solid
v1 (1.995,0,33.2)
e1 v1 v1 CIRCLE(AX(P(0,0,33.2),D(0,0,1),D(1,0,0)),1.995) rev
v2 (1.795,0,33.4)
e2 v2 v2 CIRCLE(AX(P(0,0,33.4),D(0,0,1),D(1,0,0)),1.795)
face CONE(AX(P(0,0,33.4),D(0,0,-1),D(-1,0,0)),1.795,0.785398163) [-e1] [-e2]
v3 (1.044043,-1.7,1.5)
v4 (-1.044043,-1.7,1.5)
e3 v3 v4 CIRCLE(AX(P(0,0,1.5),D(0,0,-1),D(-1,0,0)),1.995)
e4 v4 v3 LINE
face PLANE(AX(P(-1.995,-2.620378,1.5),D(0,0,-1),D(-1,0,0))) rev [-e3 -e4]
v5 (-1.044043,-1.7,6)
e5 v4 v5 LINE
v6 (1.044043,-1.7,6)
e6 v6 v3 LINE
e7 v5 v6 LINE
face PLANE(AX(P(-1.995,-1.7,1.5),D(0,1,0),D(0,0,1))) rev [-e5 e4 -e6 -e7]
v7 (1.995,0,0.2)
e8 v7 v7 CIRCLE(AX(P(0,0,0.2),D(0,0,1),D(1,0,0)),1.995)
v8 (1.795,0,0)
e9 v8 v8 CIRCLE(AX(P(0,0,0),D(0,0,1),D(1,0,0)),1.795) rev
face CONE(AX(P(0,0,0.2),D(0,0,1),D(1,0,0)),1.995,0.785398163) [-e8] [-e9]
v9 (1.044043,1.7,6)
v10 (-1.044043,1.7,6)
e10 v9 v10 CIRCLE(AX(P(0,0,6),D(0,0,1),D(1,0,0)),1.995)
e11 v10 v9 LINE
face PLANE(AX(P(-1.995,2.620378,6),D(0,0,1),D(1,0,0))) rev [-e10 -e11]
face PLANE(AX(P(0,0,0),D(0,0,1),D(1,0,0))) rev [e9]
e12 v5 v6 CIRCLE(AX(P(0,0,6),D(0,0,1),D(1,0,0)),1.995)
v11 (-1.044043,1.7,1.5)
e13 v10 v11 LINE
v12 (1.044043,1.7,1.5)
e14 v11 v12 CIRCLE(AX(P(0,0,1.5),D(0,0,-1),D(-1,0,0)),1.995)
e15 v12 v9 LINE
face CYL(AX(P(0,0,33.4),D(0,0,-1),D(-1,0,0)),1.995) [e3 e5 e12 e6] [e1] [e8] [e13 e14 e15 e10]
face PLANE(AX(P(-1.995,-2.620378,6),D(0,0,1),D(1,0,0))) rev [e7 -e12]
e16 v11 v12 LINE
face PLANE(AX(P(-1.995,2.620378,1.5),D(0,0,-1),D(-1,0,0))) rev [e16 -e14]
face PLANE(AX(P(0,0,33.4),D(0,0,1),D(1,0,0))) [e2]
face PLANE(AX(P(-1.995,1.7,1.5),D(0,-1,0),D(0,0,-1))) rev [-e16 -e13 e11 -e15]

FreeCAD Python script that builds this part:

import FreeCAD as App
import Part
import Sketcher
from FreeCAD import Vector
Q = App.Units.Quantity


def edges_at(feature, points):
    """Names of the edges that pass closest to the given points."""
    edges = feature.Shape.Edges
    near = lambda p: min(range(len(edges)), key=lambda i: edges[i].distToShape(Part.Vertex(*p))[0])
    return sorted({f"Edge{near(p) + 1}" for p in points})


def add_polygon(sketch, points):
    """Adds a closed chain of lines whose ends are joined by coincident constraints."""
    first, n = sketch.GeometryCount, len(points)
    for a, b in zip(points, points[1:] + points[:1]):
        sketch.addGeometry(Part.LineSegment(App.Vector(*a, 0), App.Vector(*b, 0)), False)
    for i in range(n):
        sketch.addConstraint(Sketcher.Constraint("Coincident", first + i, 2, first + (i + 1) % n, 1))

doc = App.newDocument("Part")
body = doc.addObject("PartDesign::Body", "Body")

sketch1 = body.newObject("Sketcher::SketchObject", "Sketch")
sketch1.AttachmentSupport = (doc.getObject("XY_Plane"), [""])
sketch1.MapMode = "FlatFace"
sketch1.addGeometry(Part.Circle(Vector(0, 0, 0), Vector(0, 0, 1), 2), False)
sketch1.addConstraint([
    Sketcher.Constraint("Coincident", 0, 3, -1, 1),
    Sketcher.Constraint("Diameter", 0, Q("3.99 mm")),
])
pad1 = body.newObject("PartDesign::Pad", "Pad")
pad1.Profile = sketch1
pad1.Length = 33.4

sketch2 = body.newObject("Sketcher::SketchObject", "Sketch001")
sketch2.AttachmentSupport = (doc.getObject("YZ_Plane"), [""])
sketch2.MapMode = "FlatFace"
add_polygon(sketch2, [(2.6, 6), (1.7, 6), (1.7, 1.5), (2.6, 1.5)])
add_polygon(sketch2, [(-1.7, 6), (-2.6, 6), (-2.6, 1.5), (-1.7, 1.5)])
sketch2.addConstraint([
    Sketcher.Constraint("Horizontal", 0),
    Sketcher.Constraint("Vertical", 1),
    Sketcher.Constraint("Horizontal", 2),
    Sketcher.Constraint("Vertical", 3),
    Sketcher.Constraint("Horizontal", 4),
    Sketcher.Constraint("Vertical", 5),
    Sketcher.Constraint("Horizontal", 6),
    Sketcher.Constraint("Vertical", 7),
    Sketcher.Constraint("Symmetric", 3, 2, 4, 2, -2),
    Sketcher.Constraint("Symmetric", 1, 2, 6, 2, -2),
    Sketcher.Constraint("DistanceY", 1, 2, 1, 1, Q("4.5 mm")),
    Sketcher.Constraint("DistanceY", -1, 1, 0, 2, Q("6 mm")),
    Sketcher.Constraint("DistanceX", -1, 1, 0, 2, Q("1.7 mm")),
    Sketcher.Constraint("DistanceX", 0, 2, 0, 1, Q("0.920378 mm")),
])
pocket1 = body.newObject("PartDesign::Pocket", "Pocket")
pocket1.Profile = sketch2
pocket1.Type = "ThroughAll"
pocket1.Midplane = True
doc.recompute()

chamfer = body.newObject("PartDesign::Chamfer", "Chamfer")
chamfer.Base = (pocket1, edges_at(pocket1, [(-1.995, 0, 0), (-1.995, 0, 33.4)]))
chamfer.Size = 0.2

doc.recompute()
